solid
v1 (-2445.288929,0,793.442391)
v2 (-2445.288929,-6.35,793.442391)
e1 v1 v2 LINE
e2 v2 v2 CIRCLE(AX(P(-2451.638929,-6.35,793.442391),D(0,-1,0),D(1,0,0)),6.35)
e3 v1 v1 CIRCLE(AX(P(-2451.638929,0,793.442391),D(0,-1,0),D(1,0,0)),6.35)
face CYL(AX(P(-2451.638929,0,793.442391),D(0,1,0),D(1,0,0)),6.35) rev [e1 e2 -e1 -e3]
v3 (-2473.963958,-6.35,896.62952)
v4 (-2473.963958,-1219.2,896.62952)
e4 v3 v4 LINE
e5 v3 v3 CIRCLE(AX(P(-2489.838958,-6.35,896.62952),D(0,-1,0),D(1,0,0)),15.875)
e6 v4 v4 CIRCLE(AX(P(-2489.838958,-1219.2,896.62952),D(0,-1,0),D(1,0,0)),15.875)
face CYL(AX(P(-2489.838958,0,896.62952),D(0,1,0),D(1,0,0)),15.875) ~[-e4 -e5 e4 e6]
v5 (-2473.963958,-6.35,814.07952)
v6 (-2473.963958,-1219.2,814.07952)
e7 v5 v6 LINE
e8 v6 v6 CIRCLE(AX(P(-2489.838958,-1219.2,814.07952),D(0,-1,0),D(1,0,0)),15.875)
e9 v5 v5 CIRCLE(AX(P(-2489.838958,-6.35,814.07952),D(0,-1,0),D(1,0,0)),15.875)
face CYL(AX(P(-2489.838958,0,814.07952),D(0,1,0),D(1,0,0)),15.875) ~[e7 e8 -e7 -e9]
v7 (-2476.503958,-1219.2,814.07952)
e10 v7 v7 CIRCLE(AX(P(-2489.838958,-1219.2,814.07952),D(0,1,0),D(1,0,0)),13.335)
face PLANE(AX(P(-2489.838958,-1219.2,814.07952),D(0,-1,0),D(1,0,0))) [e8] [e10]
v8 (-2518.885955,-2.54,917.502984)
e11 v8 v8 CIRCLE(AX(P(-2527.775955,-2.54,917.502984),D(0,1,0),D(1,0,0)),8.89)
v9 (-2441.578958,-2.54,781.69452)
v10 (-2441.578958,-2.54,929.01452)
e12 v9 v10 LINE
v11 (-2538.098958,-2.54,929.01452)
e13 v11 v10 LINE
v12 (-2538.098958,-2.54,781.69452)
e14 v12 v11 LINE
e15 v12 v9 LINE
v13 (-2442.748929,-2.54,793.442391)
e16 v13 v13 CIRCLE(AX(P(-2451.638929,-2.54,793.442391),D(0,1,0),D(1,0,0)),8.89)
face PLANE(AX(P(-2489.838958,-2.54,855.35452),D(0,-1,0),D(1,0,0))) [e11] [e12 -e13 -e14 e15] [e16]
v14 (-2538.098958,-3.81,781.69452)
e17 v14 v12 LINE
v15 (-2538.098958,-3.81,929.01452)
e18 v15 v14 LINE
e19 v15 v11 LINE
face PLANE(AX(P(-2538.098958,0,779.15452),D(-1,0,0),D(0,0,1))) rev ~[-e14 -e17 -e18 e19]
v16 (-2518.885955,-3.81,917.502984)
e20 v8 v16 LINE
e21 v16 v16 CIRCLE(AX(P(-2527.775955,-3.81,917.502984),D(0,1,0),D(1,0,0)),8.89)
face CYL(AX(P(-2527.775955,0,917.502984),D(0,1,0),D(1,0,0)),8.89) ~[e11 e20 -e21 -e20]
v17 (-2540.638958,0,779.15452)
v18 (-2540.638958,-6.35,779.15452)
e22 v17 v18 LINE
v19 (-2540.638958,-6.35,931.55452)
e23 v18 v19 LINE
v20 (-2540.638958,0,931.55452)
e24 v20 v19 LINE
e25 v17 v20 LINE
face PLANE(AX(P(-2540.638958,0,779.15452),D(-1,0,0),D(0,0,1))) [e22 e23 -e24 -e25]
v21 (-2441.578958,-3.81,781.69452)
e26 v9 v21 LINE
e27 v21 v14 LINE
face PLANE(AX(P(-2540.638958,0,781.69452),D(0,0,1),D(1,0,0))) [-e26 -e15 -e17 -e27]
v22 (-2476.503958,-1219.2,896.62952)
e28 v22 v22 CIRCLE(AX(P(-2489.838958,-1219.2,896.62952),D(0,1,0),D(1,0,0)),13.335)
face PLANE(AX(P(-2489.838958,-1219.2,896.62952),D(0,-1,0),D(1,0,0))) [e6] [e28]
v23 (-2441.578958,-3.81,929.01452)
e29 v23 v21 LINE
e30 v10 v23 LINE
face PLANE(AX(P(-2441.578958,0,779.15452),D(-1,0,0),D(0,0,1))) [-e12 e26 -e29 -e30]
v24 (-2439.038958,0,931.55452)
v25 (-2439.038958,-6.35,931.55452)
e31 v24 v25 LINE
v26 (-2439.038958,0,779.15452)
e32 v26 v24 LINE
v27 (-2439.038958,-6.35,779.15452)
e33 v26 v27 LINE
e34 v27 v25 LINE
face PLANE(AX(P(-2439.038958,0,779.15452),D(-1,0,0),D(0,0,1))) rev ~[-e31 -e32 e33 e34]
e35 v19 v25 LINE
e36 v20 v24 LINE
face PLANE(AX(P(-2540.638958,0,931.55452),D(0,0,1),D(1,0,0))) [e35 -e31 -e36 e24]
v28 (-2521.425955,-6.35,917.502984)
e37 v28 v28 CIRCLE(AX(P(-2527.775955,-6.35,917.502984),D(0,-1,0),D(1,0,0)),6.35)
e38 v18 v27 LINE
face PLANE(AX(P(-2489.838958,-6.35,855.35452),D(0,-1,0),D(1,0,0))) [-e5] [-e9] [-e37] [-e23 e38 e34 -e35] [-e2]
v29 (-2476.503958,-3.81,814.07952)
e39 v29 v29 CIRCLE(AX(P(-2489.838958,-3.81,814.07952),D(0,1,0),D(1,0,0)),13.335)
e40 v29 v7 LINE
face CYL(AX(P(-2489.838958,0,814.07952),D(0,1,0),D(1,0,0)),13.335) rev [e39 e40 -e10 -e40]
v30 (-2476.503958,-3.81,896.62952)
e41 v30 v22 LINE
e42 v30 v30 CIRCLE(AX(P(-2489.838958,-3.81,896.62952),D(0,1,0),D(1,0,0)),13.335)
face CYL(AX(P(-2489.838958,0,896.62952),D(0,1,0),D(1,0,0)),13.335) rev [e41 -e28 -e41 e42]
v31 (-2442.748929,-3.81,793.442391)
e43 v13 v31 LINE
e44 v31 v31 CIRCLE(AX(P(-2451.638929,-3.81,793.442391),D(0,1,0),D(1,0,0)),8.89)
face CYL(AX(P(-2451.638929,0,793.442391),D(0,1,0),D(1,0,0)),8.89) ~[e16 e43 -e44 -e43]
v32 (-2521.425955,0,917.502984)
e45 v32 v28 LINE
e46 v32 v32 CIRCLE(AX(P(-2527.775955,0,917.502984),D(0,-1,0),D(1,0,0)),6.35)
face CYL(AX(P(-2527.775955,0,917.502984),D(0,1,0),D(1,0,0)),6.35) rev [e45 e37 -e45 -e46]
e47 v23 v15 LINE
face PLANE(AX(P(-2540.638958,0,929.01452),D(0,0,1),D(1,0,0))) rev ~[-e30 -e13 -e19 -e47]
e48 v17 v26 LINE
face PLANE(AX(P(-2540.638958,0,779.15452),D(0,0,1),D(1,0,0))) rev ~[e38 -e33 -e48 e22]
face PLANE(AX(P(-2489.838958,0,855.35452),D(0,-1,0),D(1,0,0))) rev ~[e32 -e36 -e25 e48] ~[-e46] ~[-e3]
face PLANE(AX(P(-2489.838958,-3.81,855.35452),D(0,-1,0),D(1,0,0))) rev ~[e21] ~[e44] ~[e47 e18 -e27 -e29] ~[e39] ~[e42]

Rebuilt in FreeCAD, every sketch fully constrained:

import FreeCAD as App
import Part
import Sketcher

V = App.Vector
Q = App.Units.Quantity


def faces_at(feature, points):
    """Names of the faces that lie closest to the given points."""
    faces = feature.Shape.Faces
    near = lambda p: min(range(len(faces)), key=lambda i: faces[i].distToShape(Part.Vertex(*p))[0])
    return sorted({f"Face{near(p) + 1}" for p in points})


def add_polygon(sketch, points):
    """Adds a closed chain of lines whose ends are joined by coincident constraints."""
    first, n = sketch.GeometryCount, len(points)
    for a, b in zip(points, points[1:] + points[:1]):
        sketch.addGeometry(Part.LineSegment(App.Vector(*a, 0), App.Vector(*b, 0)), False)
    for i in range(n):
        sketch.addConstraint(Sketcher.Constraint("Coincident", first + i, 2, first + (i + 1) % n, 1))

doc = App.newDocument("Part")
body = doc.addObject("PartDesign::Body", "Body")

# Sketch on XZ plane
sketch1 = body.newObject("Sketcher::SketchObject", "Sketch")
sketch1.AttachmentSupport = (doc.getObject("XZ_Plane"), [""])
sketch1.MapMode = "FlatFace"
add_polygon(sketch1, [(-2540.638958, 931.55452), (-2540.638958, 779.15452), (-2439.038958, 779.15452), (-2439.038958, 931.55452)])  # lines 0-3
sketch1.addGeometry(Part.Circle(V(-2489.838958, 814.07952, 0), V(0, 0, 1), 15.875), False)  # 4
sketch1.addGeometry(Part.Circle(V(-2451.638929, 793.442391, 0), V(0, 0, 1), 6.35), False)  # 5
sketch1.addGeometry(Part.Circle(V(-2527.775955, 917.502984, 0), V(0, 0, 1), 6.35), False)  # 6
sketch1.addGeometry(Part.Circle(V(-2489.838958, 896.62952, 0), V(0, 0, 1), 15.875), False)  # 7
sketch1.addConstraint([
    Sketcher.Constraint("Vertical", 0),
    Sketcher.Constraint("Horizontal", 1),
    Sketcher.Constraint("Vertical", 2),
    Sketcher.Constraint("Horizontal", 3),
    Sketcher.Constraint("Equal", 5, 6),
    Sketcher.Constraint("Equal", 4, 7),
    Sketcher.Constraint("Vertical", 4, 3, 7, 3),
    Sketcher.Constraint("Diameter", 5, Q("0.5 in")),
    Sketcher.Constraint("Diameter", 4, Q("1.25 in")),
    Sketcher.Constraint("DistanceX", 1, 1, 1, 2, Q("4 in")),
    Sketcher.Constraint("DistanceY", 0, 2, 0, 1, Q("6 in")),
    Sketcher.Constraint("DistanceX", 0, 2, 4, 3, Q("2 in")),
    Sketcher.Constraint("DistanceY", 4, 3, 7, 3, Q("3.25 in")),
    Sketcher.Constraint("DistanceY", 0, 2, 4, 3, Q("1.375 in")),
    Sketcher.Constraint("DistanceY", -1, 1, 4, 3, Q("814.07952 mm")),
    Sketcher.Constraint("DistanceX", 5, 3, -1, 1, Q("2451.638929 mm")),
    Sketcher.Constraint("DistanceY", -1, 1, 5, 3, Q("793.442391 mm")),
    Sketcher.Constraint("DistanceX", 4, 3, 5, 3, Q("38.200029 mm")),
    Sketcher.Constraint("DistanceX", 6, 3, -1, 1, Q("2527.775955 mm")),
    Sketcher.Constraint("DistanceY", -1, 1, 6, 3, Q("917.502984 mm")),
])
pad1 = body.newObject("PartDesign::Pad", "Pad")
pad1.Profile = sketch1
pad1.Length = Q("0.25 in")

# Sketch on XZ plane
sketch2 = body.newObject("Sketcher::SketchObject", "Sketch001")
sketch2.AttachmentSupport = (doc.getObject("XZ_Plane"), [""])
sketch2.MapMode = "FlatFace"
sketch2.addGeometry([
    Part.Circle(V(-2489.838958, 896.62952, 0), V(0, 0, 1), 15.875),
    Part.Circle(V(-2489.838958, 814.07952, 0), V(0, 0, 1), 15.875),
], False)
sketch2.addConstraint([
    Sketcher.Constraint("Equal", 0, 1),
    Sketcher.Constraint("Vertical", 0, 3, 1, 3),
    Sketcher.Constraint("Diameter", 0, Q("1.25 in")),
    Sketcher.Constraint("DistanceY", 1, 3, 0, 3, Q("3.25 in")),
    Sketcher.Constraint("DistanceY", -1, 1, 0, 3, Q("896.62952 mm")),
    Sketcher.Constraint("DistanceX", 0, 3, -1, 1, Q("2489.838958 mm")),
])
pad2 = body.newObject("PartDesign::Pad", "Pad001")
pad2.Profile = sketch2
pad2.Length = Q("48 in")
doc.recompute()

thickness = body.newObject("PartDesign::Thickness", "Thickness")
thickness.Base = (pad2, faces_at(pad2, [(-2489.839, -1219.2, 896.63), (-2489.839, -1219.2, 814.08)]))
thickness.Value = Q("0.1 in")
thickness.Reversed = True
thickness.Join = "Intersection"

doc.recompute()
